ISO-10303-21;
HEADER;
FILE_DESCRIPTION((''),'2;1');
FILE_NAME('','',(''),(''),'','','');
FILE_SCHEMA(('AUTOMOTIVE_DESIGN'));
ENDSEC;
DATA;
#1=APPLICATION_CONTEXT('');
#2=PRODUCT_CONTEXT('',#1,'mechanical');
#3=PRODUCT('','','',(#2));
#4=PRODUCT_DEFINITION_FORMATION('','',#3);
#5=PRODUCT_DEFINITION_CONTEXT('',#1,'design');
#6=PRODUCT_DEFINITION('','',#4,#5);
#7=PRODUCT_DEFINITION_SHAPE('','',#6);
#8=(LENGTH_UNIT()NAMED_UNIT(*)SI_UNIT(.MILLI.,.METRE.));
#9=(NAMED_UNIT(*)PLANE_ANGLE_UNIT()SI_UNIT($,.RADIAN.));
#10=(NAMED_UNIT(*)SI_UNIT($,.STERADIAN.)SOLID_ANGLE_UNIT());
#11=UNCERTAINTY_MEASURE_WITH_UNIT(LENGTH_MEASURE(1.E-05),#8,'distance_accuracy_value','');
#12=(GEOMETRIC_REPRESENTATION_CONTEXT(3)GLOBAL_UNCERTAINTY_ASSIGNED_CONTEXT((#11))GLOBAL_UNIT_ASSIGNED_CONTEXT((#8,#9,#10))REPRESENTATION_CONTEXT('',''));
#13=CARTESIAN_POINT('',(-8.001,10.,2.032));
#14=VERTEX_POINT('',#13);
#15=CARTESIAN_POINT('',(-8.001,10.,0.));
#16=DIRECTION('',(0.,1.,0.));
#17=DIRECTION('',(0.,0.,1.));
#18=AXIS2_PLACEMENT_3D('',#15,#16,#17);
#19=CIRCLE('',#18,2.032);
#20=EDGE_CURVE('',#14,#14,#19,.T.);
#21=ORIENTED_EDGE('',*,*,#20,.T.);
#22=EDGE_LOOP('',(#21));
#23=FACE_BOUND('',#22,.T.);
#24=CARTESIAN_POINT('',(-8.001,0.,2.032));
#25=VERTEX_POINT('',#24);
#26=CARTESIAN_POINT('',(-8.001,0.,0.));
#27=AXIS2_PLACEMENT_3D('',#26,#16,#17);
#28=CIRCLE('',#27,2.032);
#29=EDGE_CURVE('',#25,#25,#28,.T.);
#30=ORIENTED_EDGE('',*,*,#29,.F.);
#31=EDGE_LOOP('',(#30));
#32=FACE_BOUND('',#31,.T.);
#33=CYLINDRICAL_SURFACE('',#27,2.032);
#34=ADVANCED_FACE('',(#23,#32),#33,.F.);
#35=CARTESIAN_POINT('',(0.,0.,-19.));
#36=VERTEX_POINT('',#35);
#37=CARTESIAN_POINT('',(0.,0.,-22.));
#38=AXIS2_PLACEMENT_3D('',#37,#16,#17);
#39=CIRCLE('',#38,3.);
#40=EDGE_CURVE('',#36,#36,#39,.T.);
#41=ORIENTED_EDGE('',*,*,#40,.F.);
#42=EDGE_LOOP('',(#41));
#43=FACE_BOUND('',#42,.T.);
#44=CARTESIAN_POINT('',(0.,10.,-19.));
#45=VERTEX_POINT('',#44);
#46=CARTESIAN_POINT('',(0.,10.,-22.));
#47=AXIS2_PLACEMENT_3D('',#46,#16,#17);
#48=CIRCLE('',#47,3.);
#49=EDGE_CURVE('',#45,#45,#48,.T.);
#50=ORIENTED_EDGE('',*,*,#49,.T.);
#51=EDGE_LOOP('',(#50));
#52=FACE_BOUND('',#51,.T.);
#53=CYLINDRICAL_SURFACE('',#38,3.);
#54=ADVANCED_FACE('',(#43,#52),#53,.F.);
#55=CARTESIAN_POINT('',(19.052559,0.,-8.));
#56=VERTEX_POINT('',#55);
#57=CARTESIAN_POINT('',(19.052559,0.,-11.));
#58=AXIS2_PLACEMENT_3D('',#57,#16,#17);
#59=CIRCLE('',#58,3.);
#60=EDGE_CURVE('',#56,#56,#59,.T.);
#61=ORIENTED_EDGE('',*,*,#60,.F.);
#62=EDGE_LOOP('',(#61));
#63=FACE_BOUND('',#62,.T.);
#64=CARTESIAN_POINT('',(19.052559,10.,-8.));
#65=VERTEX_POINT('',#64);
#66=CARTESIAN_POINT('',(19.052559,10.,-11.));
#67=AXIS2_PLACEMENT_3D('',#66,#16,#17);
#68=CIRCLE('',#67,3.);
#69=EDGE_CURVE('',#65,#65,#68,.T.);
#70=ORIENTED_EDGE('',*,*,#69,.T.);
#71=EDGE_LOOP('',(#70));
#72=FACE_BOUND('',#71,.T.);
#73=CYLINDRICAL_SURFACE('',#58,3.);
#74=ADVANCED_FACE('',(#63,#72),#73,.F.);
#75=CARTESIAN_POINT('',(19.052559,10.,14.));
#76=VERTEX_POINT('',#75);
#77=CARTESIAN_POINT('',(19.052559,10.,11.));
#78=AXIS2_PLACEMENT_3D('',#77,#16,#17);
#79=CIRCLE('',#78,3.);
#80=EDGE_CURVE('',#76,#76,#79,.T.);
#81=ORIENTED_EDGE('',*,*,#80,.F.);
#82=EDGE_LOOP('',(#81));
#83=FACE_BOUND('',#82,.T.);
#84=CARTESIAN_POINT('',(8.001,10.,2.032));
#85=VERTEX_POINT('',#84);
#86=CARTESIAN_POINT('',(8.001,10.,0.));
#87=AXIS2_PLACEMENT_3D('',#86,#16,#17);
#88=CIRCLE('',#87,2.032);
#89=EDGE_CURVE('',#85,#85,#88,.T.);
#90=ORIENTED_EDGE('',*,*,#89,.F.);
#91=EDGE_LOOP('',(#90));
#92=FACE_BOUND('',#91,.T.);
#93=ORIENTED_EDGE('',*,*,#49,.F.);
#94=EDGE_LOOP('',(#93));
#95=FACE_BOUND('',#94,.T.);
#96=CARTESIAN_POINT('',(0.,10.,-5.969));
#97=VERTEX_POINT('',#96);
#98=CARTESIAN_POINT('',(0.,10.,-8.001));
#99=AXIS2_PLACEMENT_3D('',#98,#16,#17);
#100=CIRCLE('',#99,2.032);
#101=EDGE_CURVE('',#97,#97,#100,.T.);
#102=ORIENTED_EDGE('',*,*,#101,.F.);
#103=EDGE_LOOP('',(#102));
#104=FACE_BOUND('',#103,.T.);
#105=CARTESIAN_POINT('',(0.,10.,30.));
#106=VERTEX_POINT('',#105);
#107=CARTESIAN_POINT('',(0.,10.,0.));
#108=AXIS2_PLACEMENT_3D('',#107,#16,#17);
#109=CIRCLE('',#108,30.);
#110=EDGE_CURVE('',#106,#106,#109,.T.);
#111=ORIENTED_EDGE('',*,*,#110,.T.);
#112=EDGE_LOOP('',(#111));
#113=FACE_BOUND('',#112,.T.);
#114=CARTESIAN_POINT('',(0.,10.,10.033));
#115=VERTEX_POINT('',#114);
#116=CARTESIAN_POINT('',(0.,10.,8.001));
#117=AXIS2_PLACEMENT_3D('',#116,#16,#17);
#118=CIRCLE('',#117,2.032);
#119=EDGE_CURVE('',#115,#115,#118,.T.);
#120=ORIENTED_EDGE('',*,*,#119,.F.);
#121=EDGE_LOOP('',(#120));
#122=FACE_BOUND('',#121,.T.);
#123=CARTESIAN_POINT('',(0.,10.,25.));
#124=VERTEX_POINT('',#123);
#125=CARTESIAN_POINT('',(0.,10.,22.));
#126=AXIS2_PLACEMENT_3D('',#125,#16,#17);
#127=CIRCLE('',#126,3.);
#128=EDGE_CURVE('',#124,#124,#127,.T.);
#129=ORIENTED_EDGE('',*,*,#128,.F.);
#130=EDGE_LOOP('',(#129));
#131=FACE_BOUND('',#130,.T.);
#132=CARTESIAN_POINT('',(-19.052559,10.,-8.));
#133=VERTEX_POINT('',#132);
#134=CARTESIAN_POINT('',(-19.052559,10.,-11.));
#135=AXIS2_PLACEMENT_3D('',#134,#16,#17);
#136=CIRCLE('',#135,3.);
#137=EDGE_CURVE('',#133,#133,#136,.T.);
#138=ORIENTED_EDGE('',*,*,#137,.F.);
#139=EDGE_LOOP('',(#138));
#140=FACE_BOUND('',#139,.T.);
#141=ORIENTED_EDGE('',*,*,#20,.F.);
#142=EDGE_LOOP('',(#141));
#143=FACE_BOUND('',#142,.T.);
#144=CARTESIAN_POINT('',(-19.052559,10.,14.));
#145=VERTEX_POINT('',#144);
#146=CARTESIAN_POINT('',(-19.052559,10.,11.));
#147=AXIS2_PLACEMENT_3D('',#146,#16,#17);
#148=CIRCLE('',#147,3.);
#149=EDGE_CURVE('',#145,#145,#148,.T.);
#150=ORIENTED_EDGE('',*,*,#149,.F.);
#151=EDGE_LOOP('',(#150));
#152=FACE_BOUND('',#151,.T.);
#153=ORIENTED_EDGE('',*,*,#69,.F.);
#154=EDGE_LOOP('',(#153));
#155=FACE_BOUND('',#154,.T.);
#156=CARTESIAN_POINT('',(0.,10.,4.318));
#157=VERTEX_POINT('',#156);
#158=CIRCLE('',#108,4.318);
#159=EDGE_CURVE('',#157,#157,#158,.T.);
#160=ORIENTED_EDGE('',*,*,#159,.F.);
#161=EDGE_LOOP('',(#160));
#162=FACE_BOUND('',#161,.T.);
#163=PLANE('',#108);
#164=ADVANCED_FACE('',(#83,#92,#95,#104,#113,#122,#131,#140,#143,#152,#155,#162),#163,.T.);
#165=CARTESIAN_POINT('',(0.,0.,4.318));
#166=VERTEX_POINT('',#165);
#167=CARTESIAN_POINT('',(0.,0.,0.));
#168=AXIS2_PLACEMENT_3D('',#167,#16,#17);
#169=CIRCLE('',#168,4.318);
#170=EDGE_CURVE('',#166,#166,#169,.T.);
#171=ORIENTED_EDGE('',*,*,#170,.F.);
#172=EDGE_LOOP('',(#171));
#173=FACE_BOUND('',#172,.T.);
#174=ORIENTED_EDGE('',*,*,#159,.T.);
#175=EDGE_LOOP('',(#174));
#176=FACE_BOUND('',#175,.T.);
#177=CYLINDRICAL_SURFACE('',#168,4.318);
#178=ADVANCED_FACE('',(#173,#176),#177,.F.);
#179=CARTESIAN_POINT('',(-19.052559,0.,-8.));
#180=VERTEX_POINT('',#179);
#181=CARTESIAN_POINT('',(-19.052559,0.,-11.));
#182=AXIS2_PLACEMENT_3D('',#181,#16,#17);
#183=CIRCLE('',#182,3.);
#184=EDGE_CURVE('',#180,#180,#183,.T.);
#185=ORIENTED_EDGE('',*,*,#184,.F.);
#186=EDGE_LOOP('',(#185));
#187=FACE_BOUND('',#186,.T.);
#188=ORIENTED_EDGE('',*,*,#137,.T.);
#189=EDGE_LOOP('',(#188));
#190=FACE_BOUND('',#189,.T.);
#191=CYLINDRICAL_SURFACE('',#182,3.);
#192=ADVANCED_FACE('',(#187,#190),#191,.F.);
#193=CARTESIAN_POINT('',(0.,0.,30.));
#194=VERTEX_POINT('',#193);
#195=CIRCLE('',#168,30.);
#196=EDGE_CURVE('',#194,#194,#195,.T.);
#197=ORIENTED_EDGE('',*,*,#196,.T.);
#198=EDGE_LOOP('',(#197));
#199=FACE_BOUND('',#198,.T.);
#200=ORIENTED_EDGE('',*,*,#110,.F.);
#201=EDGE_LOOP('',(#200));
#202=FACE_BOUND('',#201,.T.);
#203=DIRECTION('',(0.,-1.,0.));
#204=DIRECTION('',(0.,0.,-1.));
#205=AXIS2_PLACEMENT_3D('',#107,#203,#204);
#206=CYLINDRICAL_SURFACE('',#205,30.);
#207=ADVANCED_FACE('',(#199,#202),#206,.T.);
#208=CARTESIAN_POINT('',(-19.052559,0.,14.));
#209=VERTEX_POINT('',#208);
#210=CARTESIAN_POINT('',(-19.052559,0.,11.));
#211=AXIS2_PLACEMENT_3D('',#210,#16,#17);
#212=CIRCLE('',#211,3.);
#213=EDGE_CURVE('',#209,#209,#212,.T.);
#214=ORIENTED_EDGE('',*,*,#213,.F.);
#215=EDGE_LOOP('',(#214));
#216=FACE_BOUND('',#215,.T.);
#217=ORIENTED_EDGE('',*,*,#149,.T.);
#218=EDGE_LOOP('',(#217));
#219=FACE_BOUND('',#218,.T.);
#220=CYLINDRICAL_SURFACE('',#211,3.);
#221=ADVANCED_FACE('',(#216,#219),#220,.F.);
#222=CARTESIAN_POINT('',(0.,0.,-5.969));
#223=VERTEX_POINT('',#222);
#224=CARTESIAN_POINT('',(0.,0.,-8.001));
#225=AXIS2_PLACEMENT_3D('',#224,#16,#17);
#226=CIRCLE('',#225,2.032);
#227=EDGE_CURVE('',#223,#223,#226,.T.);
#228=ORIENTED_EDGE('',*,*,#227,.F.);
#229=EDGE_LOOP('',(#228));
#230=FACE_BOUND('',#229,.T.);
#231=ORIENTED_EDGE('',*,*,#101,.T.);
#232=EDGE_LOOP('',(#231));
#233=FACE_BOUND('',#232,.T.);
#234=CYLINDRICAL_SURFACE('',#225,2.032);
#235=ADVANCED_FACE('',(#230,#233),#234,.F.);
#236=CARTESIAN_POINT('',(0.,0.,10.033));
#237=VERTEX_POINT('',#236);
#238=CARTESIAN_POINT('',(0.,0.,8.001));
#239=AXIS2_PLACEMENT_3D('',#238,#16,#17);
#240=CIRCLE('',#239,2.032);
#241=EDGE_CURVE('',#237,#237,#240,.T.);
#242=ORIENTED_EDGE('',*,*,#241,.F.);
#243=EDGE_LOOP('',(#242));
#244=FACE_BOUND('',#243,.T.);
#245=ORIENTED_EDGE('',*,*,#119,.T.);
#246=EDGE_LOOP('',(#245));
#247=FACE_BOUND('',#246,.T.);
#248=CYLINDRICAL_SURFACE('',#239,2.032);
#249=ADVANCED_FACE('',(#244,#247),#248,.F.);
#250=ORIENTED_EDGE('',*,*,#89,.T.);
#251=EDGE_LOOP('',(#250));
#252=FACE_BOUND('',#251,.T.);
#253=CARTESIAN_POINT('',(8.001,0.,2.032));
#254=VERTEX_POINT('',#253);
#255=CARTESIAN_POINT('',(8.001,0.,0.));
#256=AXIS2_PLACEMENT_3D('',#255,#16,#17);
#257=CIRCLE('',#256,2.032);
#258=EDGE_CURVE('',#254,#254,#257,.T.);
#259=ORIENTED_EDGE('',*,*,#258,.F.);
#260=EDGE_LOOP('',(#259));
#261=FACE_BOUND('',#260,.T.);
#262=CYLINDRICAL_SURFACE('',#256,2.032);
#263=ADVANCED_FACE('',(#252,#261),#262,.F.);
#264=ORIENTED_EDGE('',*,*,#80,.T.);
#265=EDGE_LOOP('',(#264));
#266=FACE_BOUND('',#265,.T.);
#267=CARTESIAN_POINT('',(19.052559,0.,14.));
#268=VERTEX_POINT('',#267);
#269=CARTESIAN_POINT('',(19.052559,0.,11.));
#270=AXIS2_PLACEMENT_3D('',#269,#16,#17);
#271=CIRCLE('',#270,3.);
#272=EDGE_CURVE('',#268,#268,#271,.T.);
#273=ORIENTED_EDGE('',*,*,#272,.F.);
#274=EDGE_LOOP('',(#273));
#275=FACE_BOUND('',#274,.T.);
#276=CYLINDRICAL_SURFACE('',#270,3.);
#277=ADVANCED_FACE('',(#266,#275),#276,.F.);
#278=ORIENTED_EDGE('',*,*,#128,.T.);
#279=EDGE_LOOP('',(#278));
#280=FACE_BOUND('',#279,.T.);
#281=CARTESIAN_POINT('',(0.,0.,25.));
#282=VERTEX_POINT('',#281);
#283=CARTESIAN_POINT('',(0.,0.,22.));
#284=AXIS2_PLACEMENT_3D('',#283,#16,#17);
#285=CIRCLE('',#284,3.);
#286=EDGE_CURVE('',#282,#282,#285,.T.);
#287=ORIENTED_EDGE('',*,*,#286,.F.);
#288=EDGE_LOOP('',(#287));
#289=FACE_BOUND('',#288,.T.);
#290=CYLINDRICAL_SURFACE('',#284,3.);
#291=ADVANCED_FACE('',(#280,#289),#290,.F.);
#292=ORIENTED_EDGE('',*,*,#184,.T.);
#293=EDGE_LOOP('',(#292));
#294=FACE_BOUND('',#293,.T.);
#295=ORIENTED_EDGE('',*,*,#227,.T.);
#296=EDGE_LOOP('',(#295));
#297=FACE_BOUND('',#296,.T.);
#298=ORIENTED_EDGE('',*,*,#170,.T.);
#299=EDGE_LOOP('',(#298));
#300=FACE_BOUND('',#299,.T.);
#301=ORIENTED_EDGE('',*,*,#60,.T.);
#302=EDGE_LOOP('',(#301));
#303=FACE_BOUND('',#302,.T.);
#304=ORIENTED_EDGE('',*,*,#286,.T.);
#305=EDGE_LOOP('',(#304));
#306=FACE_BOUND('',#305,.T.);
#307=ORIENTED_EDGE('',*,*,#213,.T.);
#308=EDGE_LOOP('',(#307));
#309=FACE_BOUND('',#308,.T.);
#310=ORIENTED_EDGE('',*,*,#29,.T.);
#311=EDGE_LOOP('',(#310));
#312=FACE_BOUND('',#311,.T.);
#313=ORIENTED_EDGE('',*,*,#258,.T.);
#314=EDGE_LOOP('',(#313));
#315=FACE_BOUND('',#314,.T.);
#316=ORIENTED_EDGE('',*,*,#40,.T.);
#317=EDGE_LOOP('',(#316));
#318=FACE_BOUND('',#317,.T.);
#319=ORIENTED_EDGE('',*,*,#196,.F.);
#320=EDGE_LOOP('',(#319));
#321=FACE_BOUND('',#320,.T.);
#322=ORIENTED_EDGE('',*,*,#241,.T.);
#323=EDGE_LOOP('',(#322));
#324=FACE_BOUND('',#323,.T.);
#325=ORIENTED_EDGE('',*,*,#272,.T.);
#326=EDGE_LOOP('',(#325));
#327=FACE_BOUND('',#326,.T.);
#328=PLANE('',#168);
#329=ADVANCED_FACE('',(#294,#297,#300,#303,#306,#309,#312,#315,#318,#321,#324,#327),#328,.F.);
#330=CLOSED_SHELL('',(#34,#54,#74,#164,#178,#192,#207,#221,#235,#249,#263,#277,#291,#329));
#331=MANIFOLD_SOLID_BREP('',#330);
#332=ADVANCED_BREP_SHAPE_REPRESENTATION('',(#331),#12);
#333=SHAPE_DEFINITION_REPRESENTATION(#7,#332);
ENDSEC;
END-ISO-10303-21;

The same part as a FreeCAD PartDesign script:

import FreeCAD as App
import Part
import Sketcher

V = App.Vector
Q = App.Units.Quantity

doc = App.newDocument("Part")
body = doc.addObject("PartDesign::Body", "Body")

sketch1 = body.newObject("Sketcher::SketchObject", "Sketch")
sketch1.AttachmentSupport = (doc.getObject("XZ_Plane"), [""])
sketch1.MapMode = "FlatFace"
sketch1.addGeometry(Part.Circle(V(0, 0, 0), V(0, 0, 1), 30), False)
sketch1.addConstraint(Sketcher.Constraint("Coincident", 0, 3, -1, 1))
sketch1.addConstraint(Sketcher.Constraint("Diameter", 0, Q("60 mm")))
pad1 = body.newObject("PartDesign::Pad", "Pad")
pad1.Profile = sketch1
pad1.Length = 10
pad1.Reversed = True

sketch2 = body.newObject("Sketcher::SketchObject", "Sketch001")
sketch2.AttachmentSupport = (doc.getObject("XZ_Plane"), [""])
sketch2.MapMode = "FlatFace"
sketch2.AttachmentOffset = App.Placement(V(0, 0, -10), App.Rotation())
sketch2.addGeometry(Part.Circle(V(0, 22, 0), V(0, 0, 1), 3), False)
sketch2.addGeometry(Part.Circle(V(-19.1, 11, 0), V(0, 0, 1), 3), False)
sketch2.addGeometry(Part.Circle(V(-19.1, -11, 0), V(0, 0, 1), 3), False)
sketch2.addGeometry(Part.Circle(V(0, -22, 0), V(0, 0, 1), 3), False)
sketch2.addGeometry(Part.Circle(V(19.1, -11, 0), V(0, 0, 1), 3), False)
sketch2.addGeometry(Part.Circle(V(19.1, 11, 0), V(0, 0, 1), 3), False)
sketch2.addConstraint(Sketcher.Constraint("Equal", 0, 1))
sketch2.addConstraint(Sketcher.Constraint("Equal", 1, 2))
sketch2.addConstraint(Sketcher.Constraint("Equal", 2, 3))
sketch2.addConstraint(Sketcher.Constraint("Equal", 3, 4))
sketch2.addConstraint(Sketcher.Constraint("Equal", 4, 5))
sketch2.addConstraint(Sketcher.Constraint("Symmetric", 0, 3, 3, 3, -1, 1))
sketch2.addConstraint(Sketcher.Constraint("Symmetric", 1, 3, 4, 3, -1, 1))
sketch2.addConstraint(Sketcher.Constraint("Symmetric", 2, 3, 5, 3, -1, 1))
sketch2.addConstraint(Sketcher.Constraint("Symmetric", 2, 3, 4, 3, -2))
sketch2.addConstraint(Sketcher.Constraint("PointOnObject", 0, 3, -2))
sketch2.addConstraint(Sketcher.Constraint("Diameter", 0, Q("6 mm")))
sketch2.addConstraint(Sketcher.Constraint("DistanceY", -1, 1, 0, 3, Q("22 mm")))
sketch2.addConstraint(Sketcher.Constraint("DistanceY", -1, 1, 1, 3, Q("11 mm")))
sketch2.addConstraint(Sketcher.Constraint("DistanceX", 1, 3, -1, 1, Q("19.052559 mm")))
pocket1 = body.newObject("PartDesign::Pocket", "Pocket")
pocket1.Profile = sketch2
pocket1.Length = 10
pocket1.Reversed = True

sketch3 = body.newObject("Sketcher::SketchObject", "Sketch002")
sketch3.AttachmentSupport = (doc.getObject("XZ_Plane"), [""])
sketch3.MapMode = "FlatFace"
sketch3.AttachmentOffset = App.Placement(V(0, 0, -10), App.Rotation())
sketch3.addGeometry(Part.Circle(V(0, 0, 0), V(0, 0, 1), 4.3), False)
sketch3.addGeometry(Part.Circle(V(0, 8, 0), V(0, 0, 1), 2), False)
sketch3.addGeometry(Part.Circle(V(-8, 0, 0), V(0, 0, 1), 2), False)
sketch3.addGeometry(Part.Circle(V(0, -8, 0), V(0, 0, 1), 2), False)
sketch3.addGeometry(Part.Circle(V(8, 0, 0), V(0, 0, 1), 2), False)
sketch3.addConstraint(Sketcher.Constraint("Coincident", 0, 3, -1, 1))
sketch3.addConstraint(Sketcher.Constraint("Equal", 1, 2))
sketch3.addConstraint(Sketcher.Constraint("Equal", 2, 3))
sketch3.addConstraint(Sketcher.Constraint("Equal", 3, 4))
sketch3.addConstraint(Sketcher.Constraint("Symmetric", 1, 3, 3, 3, -1, 1))
sketch3.addConstraint(Sketcher.Constraint("Symmetric", 2, 3, 4, 3, -1, 1))
sketch3.addConstraint(Sketcher.Constraint("PointOnObject", 1, 3, -2))
sketch3.addConstraint(Sketcher.Constraint("PointOnObject", 2, 3, -1))
sketch3.addConstraint(Sketcher.Constraint("Diameter", 0, Q("8.636 mm")))
sketch3.addConstraint(Sketcher.Constraint("Diameter", 1, Q("4.064 mm")))
sketch3.addConstraint(Sketcher.Constraint("DistanceY", -1, 1, 1, 3, Q("8.001 mm")))
sketch3.addConstraint(Sketcher.Constraint("DistanceX", 2, 3, -1, 1, Q("8.001 mm")))
pocket2 = body.newObject("PartDesign::Pocket", "Pocket001")
pocket2.Profile = sketch3
pocket2.Length = 10
pocket2.Reversed = True

doc.recompute()
